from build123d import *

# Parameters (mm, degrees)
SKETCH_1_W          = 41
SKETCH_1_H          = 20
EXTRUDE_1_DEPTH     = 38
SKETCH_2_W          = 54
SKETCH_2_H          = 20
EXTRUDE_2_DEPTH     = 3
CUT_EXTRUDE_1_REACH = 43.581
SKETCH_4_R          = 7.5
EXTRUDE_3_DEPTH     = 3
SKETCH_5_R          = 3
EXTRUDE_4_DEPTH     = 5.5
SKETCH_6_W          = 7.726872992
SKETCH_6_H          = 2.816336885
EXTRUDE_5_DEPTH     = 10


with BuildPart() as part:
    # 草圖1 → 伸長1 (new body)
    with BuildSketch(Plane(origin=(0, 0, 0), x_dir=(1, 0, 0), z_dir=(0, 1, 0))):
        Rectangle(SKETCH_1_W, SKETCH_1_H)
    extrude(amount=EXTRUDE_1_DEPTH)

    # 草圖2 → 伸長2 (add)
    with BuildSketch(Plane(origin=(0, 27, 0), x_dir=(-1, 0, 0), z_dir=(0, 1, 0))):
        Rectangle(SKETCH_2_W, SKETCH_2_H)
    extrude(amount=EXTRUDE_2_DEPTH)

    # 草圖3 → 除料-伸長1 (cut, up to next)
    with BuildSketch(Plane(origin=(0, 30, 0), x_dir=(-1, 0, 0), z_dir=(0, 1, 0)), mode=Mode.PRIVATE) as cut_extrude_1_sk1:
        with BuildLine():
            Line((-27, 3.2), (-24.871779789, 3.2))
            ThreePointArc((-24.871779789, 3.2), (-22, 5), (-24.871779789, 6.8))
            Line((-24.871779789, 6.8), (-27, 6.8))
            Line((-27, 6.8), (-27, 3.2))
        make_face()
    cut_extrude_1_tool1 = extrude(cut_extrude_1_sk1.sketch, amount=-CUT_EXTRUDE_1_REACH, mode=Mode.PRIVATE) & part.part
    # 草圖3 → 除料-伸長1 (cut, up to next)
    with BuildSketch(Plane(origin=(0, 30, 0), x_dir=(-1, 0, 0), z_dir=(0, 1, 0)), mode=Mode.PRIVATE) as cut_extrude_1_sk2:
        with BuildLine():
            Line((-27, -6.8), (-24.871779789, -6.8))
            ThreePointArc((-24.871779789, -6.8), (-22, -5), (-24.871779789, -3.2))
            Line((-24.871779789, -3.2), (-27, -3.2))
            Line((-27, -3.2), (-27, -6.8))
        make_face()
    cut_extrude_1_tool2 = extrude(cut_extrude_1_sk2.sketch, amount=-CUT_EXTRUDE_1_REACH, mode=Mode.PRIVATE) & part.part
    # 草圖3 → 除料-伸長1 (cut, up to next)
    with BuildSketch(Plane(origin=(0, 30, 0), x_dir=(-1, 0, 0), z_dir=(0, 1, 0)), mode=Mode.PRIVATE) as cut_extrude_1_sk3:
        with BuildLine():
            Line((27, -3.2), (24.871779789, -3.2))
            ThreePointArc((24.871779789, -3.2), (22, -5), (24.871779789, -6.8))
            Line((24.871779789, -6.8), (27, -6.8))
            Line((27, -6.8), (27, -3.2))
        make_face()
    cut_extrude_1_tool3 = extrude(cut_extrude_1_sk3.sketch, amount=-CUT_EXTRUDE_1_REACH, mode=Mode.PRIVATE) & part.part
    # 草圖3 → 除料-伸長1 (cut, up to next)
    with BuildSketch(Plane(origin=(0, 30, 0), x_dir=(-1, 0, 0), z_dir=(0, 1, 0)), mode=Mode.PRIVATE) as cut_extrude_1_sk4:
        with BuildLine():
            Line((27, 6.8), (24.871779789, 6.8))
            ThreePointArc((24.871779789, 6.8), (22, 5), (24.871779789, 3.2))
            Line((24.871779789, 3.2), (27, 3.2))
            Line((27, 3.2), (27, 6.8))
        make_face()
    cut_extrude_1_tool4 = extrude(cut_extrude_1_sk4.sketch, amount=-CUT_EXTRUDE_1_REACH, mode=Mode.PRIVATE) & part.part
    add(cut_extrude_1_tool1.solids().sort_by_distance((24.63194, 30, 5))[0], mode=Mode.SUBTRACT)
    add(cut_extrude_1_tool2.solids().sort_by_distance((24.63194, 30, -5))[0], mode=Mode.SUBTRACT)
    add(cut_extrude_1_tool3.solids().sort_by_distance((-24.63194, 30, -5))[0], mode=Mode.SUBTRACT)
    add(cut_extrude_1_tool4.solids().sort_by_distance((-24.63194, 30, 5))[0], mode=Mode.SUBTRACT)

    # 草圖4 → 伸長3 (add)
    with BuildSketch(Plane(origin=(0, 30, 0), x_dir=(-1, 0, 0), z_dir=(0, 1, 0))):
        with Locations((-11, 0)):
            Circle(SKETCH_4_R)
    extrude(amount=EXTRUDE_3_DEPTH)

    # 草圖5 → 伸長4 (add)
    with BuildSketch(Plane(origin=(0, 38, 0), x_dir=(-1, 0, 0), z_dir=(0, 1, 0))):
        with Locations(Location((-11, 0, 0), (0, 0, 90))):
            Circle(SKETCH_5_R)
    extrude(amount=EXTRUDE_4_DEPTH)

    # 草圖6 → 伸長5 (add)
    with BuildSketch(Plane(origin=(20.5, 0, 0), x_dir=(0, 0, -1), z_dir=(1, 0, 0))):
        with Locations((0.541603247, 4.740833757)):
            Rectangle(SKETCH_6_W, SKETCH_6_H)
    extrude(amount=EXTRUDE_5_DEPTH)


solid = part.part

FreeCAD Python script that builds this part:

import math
import FreeCAD as App
import Part
import Sketcher

doc = App.newDocument("Part")
body = doc.addObject("PartDesign::Body", "Body")

sketch1 = doc.addObject("Sketcher::SketchObject", "Sketch")
body.addObject(sketch1)
sketch1.AttachmentSupport = (doc.XZ_Plane, [""])
sketch1.MapMode = "FlatFace"
sketch1.addGeometry([
    Part.LineSegment(App.Vector(-20, -10, 0), App.Vector(-20, 10, 0)),
    Part.LineSegment(App.Vector(-20, 10, 0), App.Vector(20, 10, 0)),
    Part.LineSegment(App.Vector(20, 10, 0), App.Vector(20, -10, 0)),
    Part.LineSegment(App.Vector(20, -10, 0), App.Vector(-20, -10, 0)),
], False)
sketch1.addConstraint([
    Sketcher.Constraint("Coincident", 0, 2, 1, 1),
    Sketcher.Constraint("Coincident", 1, 2, 2, 1),
    Sketcher.Constraint("Coincident", 2, 2, 3, 1),
    Sketcher.Constraint("Coincident", 3, 2, 0, 1),
    Sketcher.Constraint("Vertical", 0),
    Sketcher.Constraint("Horizontal", 1),
    Sketcher.Constraint("Vertical", 2),
    Sketcher.Constraint("Horizontal", 3),
    Sketcher.Constraint("Symmetric", 0, 2, 2, 2, -1, 1),
    Sketcher.Constraint("DistanceX", 1, 1, 1, 2, 41.0),
    Sketcher.Constraint("DistanceY", 0, 1, 0, 2, 20.0),
])
pad1 = doc.addObject("PartDesign::Pad", "Pad")
body.addObject(pad1)
pad1.Profile = sketch1
pad1.Length = 38
pad1.Reversed = True

sketch2 = doc.addObject("Sketcher::SketchObject", "Sketch001")
body.addObject(sketch2)
sketch2.AttachmentSupport = (doc.XZ_Plane, [""])
sketch2.MapMode = "FlatFace"
sketch2.AttachmentOffset = App.Placement(App.Vector(0, 0, -27), App.Rotation())
sketch2.addGeometry([
    Part.LineSegment(App.Vector(27, 10, 0), App.Vector(27, -10, 0)),
    Part.LineSegment(App.Vector(27, -10, 0), App.Vector(-27, -10, 0)),
    Part.LineSegment(App.Vector(-27, -10, 0), App.Vector(-27, 10, 0)),
    Part.LineSegment(App.Vector(-27, 10, 0), App.Vector(27, 10, 0)),
], False)
sketch2.addConstraint([
    Sketcher.Constraint("Coincident", 0, 2, 1, 1),
    Sketcher.Constraint("Coincident", 1, 2, 2, 1),
    Sketcher.Constraint("Coincident", 2, 2, 3, 1),
    Sketcher.Constraint("Coincident", 3, 2, 0, 1),
    Sketcher.Constraint("Vertical", 0),
    Sketcher.Constraint("Horizontal", 1),
    Sketcher.Constraint("Vertical", 2),
    Sketcher.Constraint("Horizontal", 3),
    Sketcher.Constraint("Symmetric", 0, 2, 2, 2, -1, 1),
    Sketcher.Constraint("DistanceX", 1, 2, 1, 1, 54.0),
    Sketcher.Constraint("DistanceY", 0, 2, 0, 1, 20.0),
])
pad2 = doc.addObject("PartDesign::Pad", "Pad001")
body.addObject(pad2)
pad2.Profile = sketch2
pad2.Length = 3
pad2.Reversed = True

sketch3 = doc.addObject("Sketcher::SketchObject", "Sketch002")
body.addObject(sketch3)
sketch3.AttachmentSupport = (doc.XZ_Plane, [""])
sketch3.MapMode = "FlatFace"
sketch3.AttachmentOffset = App.Placement(App.Vector(0, 0, -30), App.Rotation())
sketch3.addGeometry([
    Part.LineSegment(App.Vector(27, 3.2, 0), App.Vector(24.9, 3.2, 0)),
    Part.ArcOfCircle(Part.Circle(App.Vector(24, 5, 0), App.Vector(0, 0, 1), 2), math.radians(64), math.radians(296)),
    Part.LineSegment(App.Vector(24.9, 6.8, 0), App.Vector(27, 6.8, 0)),
    Part.LineSegment(App.Vector(27, 6.8, 0), App.Vector(27, 3.2, 0)),
], False)
sketch3.addConstraint([
    Sketcher.Constraint("Coincident", 0, 2, 1, 2),
    Sketcher.Constraint("Coincident", 1, 1, 2, 1),
    Sketcher.Constraint("Coincident", 2, 2, 3, 1),
    Sketcher.Constraint("Coincident", 3, 2, 0, 1),
    Sketcher.Constraint("Horizontal", 0),
    Sketcher.Constraint("Horizontal", 2),
    Sketcher.Constraint("Vertical", 3),
    Sketcher.Constraint("Vertical", 0, 2, 1, 1),
    Sketcher.Constraint("Radius", 1, 2.0),
    Sketcher.Constraint("DistanceY", 3, 2, 3, 1, 3.6),
    Sketcher.Constraint("DistanceX", -1, 1, 1, 3, 24.0),
    Sketcher.Constraint("DistanceY", -1, 1, 1, 3, 5.0),
    Sketcher.Constraint("DistanceX", -1, 1, 2, 2, 27.0),
])
pocket1 = doc.addObject("PartDesign::Pocket", "Pocket")
body.addObject(pocket1)
pocket1.Profile = sketch3
pocket1.Type = "UpToFirst"
pocket1.Reversed = True

sketch4 = doc.addObject("Sketcher::SketchObject", "Sketch003")
body.addObject(sketch4)
sketch4.AttachmentSupport = (doc.XZ_Plane, [""])
sketch4.MapMode = "FlatFace"
sketch4.AttachmentOffset = App.Placement(App.Vector(0, 0, -30), App.Rotation())
sketch4.addGeometry([
    Part.LineSegment(App.Vector(27, -6.8, 0), App.Vector(24.9, -6.8, 0)),
    Part.ArcOfCircle(Part.Circle(App.Vector(24, -5, 0), App.Vector(0, 0, 1), 2), math.radians(64), math.radians(296)),
    Part.LineSegment(App.Vector(24.9, -3.2, 0), App.Vector(27, -3.2, 0)),
    Part.LineSegment(App.Vector(27, -3.2, 0), App.Vector(27, -6.8, 0)),
], False)
sketch4.addConstraint([
    Sketcher.Constraint("Coincident", 0, 2, 1, 2),
    Sketcher.Constraint("Coincident", 1, 1, 2, 1),
    Sketcher.Constraint("Coincident", 2, 2, 3, 1),
    Sketcher.Constraint("Coincident", 3, 2, 0, 1),
    Sketcher.Constraint("Horizontal", 0),
    Sketcher.Constraint("Horizontal", 2),
    Sketcher.Constraint("Vertical", 3),
    Sketcher.Constraint("Vertical", 0, 2, 1, 1),
    Sketcher.Constraint("Radius", 1, 2.0),
    Sketcher.Constraint("DistanceY", 3, 2, 3, 1, 3.6),
    Sketcher.Constraint("DistanceX", -1, 1, 1, 3, 24.0),
    Sketcher.Constraint("DistanceY", 1, 3, -1, 1, 5.0),
    Sketcher.Constraint("DistanceX", -1, 1, 2, 2, 27.0),
])
pocket2 = doc.addObject("PartDesign::Pocket", "Pocket001")
body.addObject(pocket2)
pocket2.Profile = sketch4
pocket2.Type = "UpToFirst"
pocket2.Reversed = True

sketch5 = doc.addObject("Sketcher::SketchObject", "Sketch004")
body.addObject(sketch5)
sketch5.AttachmentSupport = (doc.XZ_Plane, [""])
sketch5.MapMode = "FlatFace"
sketch5.AttachmentOffset = App.Placement(App.Vector(0, 0, -30), App.Rotation())
sketch5.addGeometry([
    Part.LineSegment(App.Vector(-27, -3.2, 0), App.Vector(-24.9, -3.2, 0)),
    Part.ArcOfCircle(Part.Circle(App.Vector(-24, -5, 0), App.Vector(0, 0, 1), 2), math.radians(-116), math.radians(116)),
    Part.LineSegment(App.Vector(-24.9, -6.8, 0), App.Vector(-27, -6.8, 0)),
    Part.LineSegment(App.Vector(-27, -6.8, 0), App.Vector(-27, -3.2, 0)),
], False)
sketch5.addConstraint([
    Sketcher.Constraint("Coincident", 0, 2, 1, 2),
    Sketcher.Constraint("Coincident", 1, 1, 2, 1),
    Sketcher.Constraint("Coincident", 2, 2, 3, 1),
    Sketcher.Constraint("Coincident", 3, 2, 0, 1),
    Sketcher.Constraint("Horizontal", 0),
    Sketcher.Constraint("Horizontal", 2),
    Sketcher.Constraint("Vertical", 3),
    Sketcher.Constraint("Vertical", 0, 2, 1, 1),
    Sketcher.Constraint("Radius", 1, 2.0),
    Sketcher.Constraint("DistanceY", 3, 1, 3, 2, 3.6),
    Sketcher.Constraint("DistanceX", 1, 3, -1, 1, 24.0),
    Sketcher.Constraint("DistanceY", 1, 3, -1, 1, 5.0),
    Sketcher.Constraint("DistanceX", 2, 2, -1, 1, 27.0),
])
pocket3 = doc.addObject("PartDesign::Pocket", "Pocket002")
body.addObject(pocket3)
pocket3.Profile = sketch5
pocket3.Type = "UpToFirst"
pocket3.Reversed = True

sketch6 = doc.addObject("Sketcher::SketchObject", "Sketch005")
body.addObject(sketch6)
sketch6.AttachmentSupport = (doc.XZ_Plane, [""])
sketch6.MapMode = "FlatFace"
sketch6.AttachmentOffset = App.Placement(App.Vector(0, 0, -30), App.Rotation())
sketch6.addGeometry([
    Part.LineSegment(App.Vector(-27, 6.8, 0), App.Vector(-24.9, 6.8, 0)),
    Part.ArcOfCircle(Part.Circle(App.Vector(-24, 5, 0), App.Vector(0, 0, 1), 2), math.radians(-116), math.radians(116)),
    Part.LineSegment(App.Vector(-24.9, 3.2, 0), App.Vector(-27, 3.2, 0)),
    Part.LineSegment(App.Vector(-27, 3.2, 0), App.Vector(-27, 6.8, 0)),
], False)
sketch6.addConstraint([
    Sketcher.Constraint("Coincident", 0, 2, 1, 2),
    Sketcher.Constraint("Coincident", 1, 1, 2, 1),
    Sketcher.Constraint("Coincident", 2, 2, 3, 1),
    Sketcher.Constraint("Coincident", 3, 2, 0, 1),
    Sketcher.Constraint("Horizontal", 0),
    Sketcher.Constraint("Horizontal", 2),
    Sketcher.Constraint("Vertical", 3),
    Sketcher.Constraint("Vertical", 0, 2, 1, 1),
    Sketcher.Constraint("Radius", 1, 2.0),
    Sketcher.Constraint("DistanceY", 3, 1, 3, 2, 3.6),
    Sketcher.Constraint("DistanceX", 1, 3, -1, 1, 24.0),
    Sketcher.Constraint("DistanceY", -1, 1, 1, 3, 5.0),
    Sketcher.Constraint("DistanceX", 2, 2, -1, 1, 27.0),
])
pocket4 = doc.addObject("PartDesign::Pocket", "Pocket003")
body.addObject(pocket4)
pocket4.Profile = sketch6
pocket4.Type = "UpToFirst"
pocket4.Reversed = True

sketch7 = doc.addObject("Sketcher::SketchObject", "Sketch006")
body.addObject(sketch7)
sketch7.AttachmentSupport = (doc.XZ_Plane, [""])
sketch7.MapMode = "FlatFace"
sketch7.AttachmentOffset = App.Placement(App.Vector(0, 0, -30), App.Rotation())
sketch7.addGeometry(Part.Circle(App.Vector(11, 0, 0), App.Vector(0, 0, 1), 8), False)
sketch7.addConstraint([
    Sketcher.Constraint("PointOnObject", 0, 3, -1),
    Sketcher.Constraint("Diameter", 0, 15.0),
    Sketcher.Constraint("DistanceX", -1, 1, 0, 3, 11.0),
])
pad3 = doc.addObject("PartDesign::Pad", "Pad002")
body.addObject(pad3)
pad3.Profile = sketch7
pad3.Length = 3
pad3.Reversed = True

sketch8 = doc.addObject("Sketcher::SketchObject", "Sketch007")
body.addObject(sketch8)
sketch8.AttachmentSupport = (doc.XZ_Plane, [""])
sketch8.MapMode = "FlatFace"
sketch8.AttachmentOffset = App.Placement(App.Vector(0, 0, -38), App.Rotation())
sketch8.addGeometry(Part.Circle(App.Vector(11, 0, 0), App.Vector(0, 0, 1), 3), False)
sketch8.addConstraint([
    Sketcher.Constraint("PointOnObject", 0, 3, -1),
    Sketcher.Constraint("Diameter", 0, 6.0),
    Sketcher.Constraint("DistanceX", -1, 1, 0, 3, 11.0),
])
pad4 = doc.addObject("PartDesign::Pad", "Pad003")
body.addObject(pad4)
pad4.Profile = sketch8
pad4.Length = 5.5
pad4.Reversed = True

sketch9 = doc.addObject("Sketcher::SketchObject", "Sketch008")
body.addObject(sketch9)
sketch9.AttachmentSupport = (doc.YZ_Plane, [""])
sketch9.MapMode = "FlatFace"
sketch9.AttachmentOffset = App.Placement(App.Vector(0, 0, 20.5), App.Rotation())
sketch9.addGeometry([
    Part.LineSegment(App.Vector(6.1, 3.3, 0), App.Vector(3.3, 3.3, 0)),
    Part.LineSegment(App.Vector(3.3, 3.3, 0), App.Vector(3.3, -4.4, 0)),
    Part.LineSegment(App.Vector(3.3, -4.4, 0), App.Vector(6.1, -4.4, 0)),
    Part.LineSegment(App.Vector(6.1, -4.4, 0), App.Vector(6.1, 3.3, 0)),
], False)
sketch9.addConstraint([
    Sketcher.Constraint("Coincident", 0, 2, 1, 1),
    Sketcher.Constraint("Coincident", 1, 2, 2, 1),
    Sketcher.Constraint("Coincident", 2, 2, 3, 1),
    Sketcher.Constraint("Coincident", 3, 2, 0, 1),
    Sketcher.Constraint("Horizontal", 0),
    Sketcher.Constraint("Vertical", 1),
    Sketcher.Constraint("Horizontal", 2),
    Sketcher.Constraint("Vertical", 3),
    Sketcher.Constraint("DistanceX", 0, 2, 0, 1, 2.816337),
    Sketcher.Constraint("DistanceY", 1, 2, 1, 1, 7.726873),
    Sketcher.Constraint("DistanceY", 1, 2, -1, 1, 4.40504),
    Sketcher.Constraint("DistanceX", -1, 1, 0, 2, 3.332665),
])
pad5 = doc.addObject("PartDesign::Pad", "Pad004")
body.addObject(pad5)
pad5.Profile = sketch9
pad5.Length = 10

doc.recompute()
